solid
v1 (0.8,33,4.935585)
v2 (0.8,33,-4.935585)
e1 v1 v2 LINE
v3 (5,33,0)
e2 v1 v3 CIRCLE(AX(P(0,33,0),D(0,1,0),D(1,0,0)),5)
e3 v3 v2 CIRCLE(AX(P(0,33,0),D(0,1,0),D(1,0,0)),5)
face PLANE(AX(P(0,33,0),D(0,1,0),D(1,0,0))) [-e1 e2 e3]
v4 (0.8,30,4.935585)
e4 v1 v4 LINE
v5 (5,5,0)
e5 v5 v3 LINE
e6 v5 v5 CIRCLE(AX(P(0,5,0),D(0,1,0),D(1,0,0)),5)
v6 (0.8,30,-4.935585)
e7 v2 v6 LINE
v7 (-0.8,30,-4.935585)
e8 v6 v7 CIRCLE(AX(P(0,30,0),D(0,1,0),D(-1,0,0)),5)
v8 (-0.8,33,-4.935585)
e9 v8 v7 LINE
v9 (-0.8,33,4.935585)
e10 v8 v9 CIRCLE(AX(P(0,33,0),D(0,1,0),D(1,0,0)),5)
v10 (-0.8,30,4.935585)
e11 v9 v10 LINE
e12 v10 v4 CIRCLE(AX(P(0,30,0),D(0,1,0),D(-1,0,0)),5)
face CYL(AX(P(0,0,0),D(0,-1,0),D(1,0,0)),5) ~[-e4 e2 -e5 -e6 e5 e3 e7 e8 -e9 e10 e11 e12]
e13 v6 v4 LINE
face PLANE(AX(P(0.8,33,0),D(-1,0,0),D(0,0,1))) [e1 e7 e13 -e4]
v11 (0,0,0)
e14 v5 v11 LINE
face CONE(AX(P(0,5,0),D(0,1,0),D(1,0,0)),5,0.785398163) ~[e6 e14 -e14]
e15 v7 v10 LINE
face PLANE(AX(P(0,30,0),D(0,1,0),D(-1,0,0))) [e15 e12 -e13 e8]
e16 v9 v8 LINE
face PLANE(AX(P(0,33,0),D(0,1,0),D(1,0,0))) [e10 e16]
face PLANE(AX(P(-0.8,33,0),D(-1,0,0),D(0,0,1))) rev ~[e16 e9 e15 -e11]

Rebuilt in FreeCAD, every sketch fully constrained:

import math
import FreeCAD as App
import Part
import Sketcher

V = App.Vector
Q = App.Units.Quantity


def edges_at(feature, points):
    """Names of the edges that pass closest to the given points."""
    edges = feature.Shape.Edges
    near = lambda p: min(range(len(edges)), key=lambda i: edges[i].distToShape(Part.Vertex(*p))[0])
    return sorted({f"Edge{near(p) + 1}" for p in points})

doc = App.newDocument("Part")
body = doc.addObject("PartDesign::Body", "Body")

# Sketch on XZ plane
sketch1 = body.newObject("Sketcher::SketchObject", "Sketch")
sketch1.AttachmentSupport = (doc.getObject("XZ_Plane"), [""])
sketch1.MapMode = "FlatFace"
sketch1.addGeometry(Part.Circle(V(0, 0, 0), V(0, 0, 1), 5), False)
sketch1.addConstraint([
    Sketcher.Constraint("Coincident", 0, 3, -1, 1),
    Sketcher.Constraint("Diameter", 0, Q("10 mm")),
])
pad1 = body.newObject("PartDesign::Pad", "Pad")
pad1.Profile = sketch1
pad1.Length = 33
pad1.Reversed = True
doc.recompute()

chamfer = body.newObject("PartDesign::Chamfer", "Chamfer")
chamfer.Base = (pad1, edges_at(pad1, [(-4.662, 0, 1.808)]))
chamfer.Size = 5

# Sketch on XZ plane
sketch2 = body.newObject("Sketcher::SketchObject", "Sketch001")
sketch2.AttachmentSupport = (doc.getObject("XZ_Plane"), [""])
sketch2.MapMode = "FlatFace"
sketch2.AttachmentOffset = App.Placement(V(0, 0, -33), App.Rotation())
sketch2.addGeometry([
    Part.ArcOfCircle(Part.Circle(V(0, 0, 0), V(0, 0, 1), 5), math.radians(80.79), math.radians(99.21)),
    Part.LineSegment(V(0.8, 4.9, 0), V(0.8, -4.9, 0)),
    Part.ArcOfCircle(Part.Circle(V(0, 0, 0), V(0, 0, 1), 5), math.radians(-99.21), math.radians(-80.79)),
    Part.LineSegment(V(-0.8, -4.9, 0), V(-0.8, 4.9, 0)),
], False)
sketch2.addConstraint([
    Sketcher.Constraint("Coincident", 0, 1, 1, 1),
    Sketcher.Constraint("Coincident", 1, 2, 2, 2),
    Sketcher.Constraint("Coincident", 2, 1, 3, 1),
    Sketcher.Constraint("Coincident", 3, 2, 0, 2),
    Sketcher.Constraint("Vertical", 1),
    Sketcher.Constraint("Vertical", 3),
    Sketcher.Constraint("Coincident", 0, 3, -1, 1),
    Sketcher.Constraint("Coincident", 2, 3, -1, 1),
    Sketcher.Constraint("Equal", 0, 2),
    Sketcher.Constraint("Horizontal", 1, 2, 2, 1),
    Sketcher.Constraint("Radius", 0, Q("5 mm")),
    Sketcher.Constraint("DistanceX", -1, 1, 0, 1, Q("0.8 mm")),
])
pocket1 = body.newObject("PartDesign::Pocket", "Pocket")
pocket1.Profile = sketch2
pocket1.Length = 3
pocket1.Reversed = True

doc.recompute()
